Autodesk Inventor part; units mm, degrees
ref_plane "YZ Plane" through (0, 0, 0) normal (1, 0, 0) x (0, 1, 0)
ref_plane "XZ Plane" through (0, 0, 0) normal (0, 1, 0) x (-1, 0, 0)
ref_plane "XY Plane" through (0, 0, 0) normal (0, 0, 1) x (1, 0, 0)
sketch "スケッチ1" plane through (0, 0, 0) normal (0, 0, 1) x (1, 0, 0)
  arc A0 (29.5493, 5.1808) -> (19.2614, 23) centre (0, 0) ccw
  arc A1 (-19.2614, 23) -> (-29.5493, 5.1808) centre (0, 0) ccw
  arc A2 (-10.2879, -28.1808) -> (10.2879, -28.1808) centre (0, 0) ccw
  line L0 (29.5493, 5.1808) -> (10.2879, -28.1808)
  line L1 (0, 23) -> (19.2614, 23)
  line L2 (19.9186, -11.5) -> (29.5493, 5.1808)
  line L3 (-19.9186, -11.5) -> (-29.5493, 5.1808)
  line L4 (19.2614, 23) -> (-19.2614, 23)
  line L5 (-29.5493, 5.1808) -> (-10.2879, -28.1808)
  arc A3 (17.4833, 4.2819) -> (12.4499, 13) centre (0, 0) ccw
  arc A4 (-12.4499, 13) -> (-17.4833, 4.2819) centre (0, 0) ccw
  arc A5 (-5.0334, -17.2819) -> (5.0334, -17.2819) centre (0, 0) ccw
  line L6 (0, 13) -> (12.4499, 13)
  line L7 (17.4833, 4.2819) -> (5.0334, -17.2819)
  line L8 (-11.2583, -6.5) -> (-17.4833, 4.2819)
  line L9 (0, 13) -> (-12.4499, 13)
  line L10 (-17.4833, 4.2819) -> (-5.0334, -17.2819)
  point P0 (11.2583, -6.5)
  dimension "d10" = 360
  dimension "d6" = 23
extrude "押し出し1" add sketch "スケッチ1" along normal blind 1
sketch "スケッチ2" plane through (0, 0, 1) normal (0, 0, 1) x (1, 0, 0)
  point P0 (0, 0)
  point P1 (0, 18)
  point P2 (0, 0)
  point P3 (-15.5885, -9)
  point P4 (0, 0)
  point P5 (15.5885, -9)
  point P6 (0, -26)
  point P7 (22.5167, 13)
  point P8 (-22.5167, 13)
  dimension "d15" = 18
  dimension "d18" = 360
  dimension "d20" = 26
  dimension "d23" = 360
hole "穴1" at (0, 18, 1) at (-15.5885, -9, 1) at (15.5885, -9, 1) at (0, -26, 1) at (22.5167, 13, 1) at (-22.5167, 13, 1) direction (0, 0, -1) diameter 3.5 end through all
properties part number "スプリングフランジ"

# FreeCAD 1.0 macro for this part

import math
import FreeCAD as App
import Part
import Sketcher

V = App.Vector
Q = App.Units.Quantity

doc = App.newDocument("Part")
body = doc.addObject("PartDesign::Body", "Body")

# Sketch on XY plane
sketch1 = doc.addObject("Sketcher::SketchObject", "Sketch")
body.addObject(sketch1)
sketch1.AttachmentSupport = (doc.XY_Plane, [""])
sketch1.MapMode = "FlatFace"
sketch1.addGeometry([
    Part.LineSegment(V(10.2879, -28.1808, 0), V(29.5493, 5.1808, 0)),  # 0
    Part.ArcOfCircle(Part.Circle(V(0, 0, 0), V(0, 0, 1), 29.999973), math.radians(9.944442), math.radians(50.055437)),  # 1
    Part.LineSegment(V(19.2614, 23, 0), V(-19.2614, 23, 0)),  # 2
    Part.ArcOfCircle(Part.Circle(V(0, 0, 0), V(0, 0, 1), 30.00003), math.radians(129.944563), math.radians(170.055558)),  # 3
    Part.LineSegment(V(-29.5493, 5.1808, 0), V(-10.2879, -28.1808, 0)),  # 4
    Part.ArcOfCircle(Part.Circle(V(0, 0, 0), V(0, 0, 1), 29.999973), math.radians(-110.055505), math.radians(-69.944495)),  # 5
    Part.ArcOfCircle(Part.Circle(V(0, 0, 0), V(0, 0, 1), 17.999977), math.radians(13.761637), math.radians(46.238256)),  # 6
    Part.LineSegment(V(17.4833, 4.2819, 0), V(5.0334, -17.2819, 0)),  # 7
    Part.ArcOfCircle(Part.Circle(V(0, 0, 0), V(0, 0, 1), 17.999977), math.radians(-106.238343), math.radians(-73.761657)),  # 8
    Part.LineSegment(V(-5.0334, -17.2819, 0), V(-11.258337, -6.500022, 0)),  # 9
    Part.LineSegment(V(-11.2583, -6.5, 0), V(-17.4833, 4.2819, 0)),  # 10
    Part.ArcOfCircle(Part.Circle(V(0, 0, 0), V(0, 0, 1), 18.000012), math.radians(133.761744), math.radians(166.238363)),  # 11
    Part.LineSegment(V(-12.4499, 13, 0), V(12.4499, 13, 0)),  # 12
], False)
sketch1.addConstraint([
    Sketcher.Constraint("Coincident", 0, 2, 1, 1),
    Sketcher.Constraint("Coincident", 1, 2, 2, 1),
    Sketcher.Constraint("Coincident", 2, 2, 3, 1),
    Sketcher.Constraint("Coincident", 3, 2, 4, 1),
    Sketcher.Constraint("Coincident", 4, 2, 5, 1),
    Sketcher.Constraint("Coincident", 5, 2, 0, 1),
    Sketcher.Constraint("Coincident", 6, 1, 7, 1),
    Sketcher.Constraint("Coincident", 7, 2, 8, 2),
    Sketcher.Constraint("Coincident", 8, 1, 9, 1),
    Sketcher.Constraint("Coincident", 9, 2, 10, 1),
    Sketcher.Constraint("Coincident", 10, 2, 11, 2),
    Sketcher.Constraint("Coincident", 11, 1, 12, 1),
    Sketcher.Constraint("Coincident", 12, 2, 6, 2),
    Sketcher.Constraint("Horizontal", 2),
    Sketcher.Constraint("Horizontal", 12),
    Sketcher.Constraint("Coincident", 1, 3, -1, 1),
    Sketcher.Constraint("Coincident", 3, 3, -1, 1),
    Sketcher.Constraint("Coincident", 5, 3, -1, 1),
    Sketcher.Constraint("Coincident", 6, 3, -1, 1),
    Sketcher.Constraint("Coincident", 8, 3, -1, 1),
    Sketcher.Constraint("Coincident", 11, 3, -1, 1),
    Sketcher.Constraint("Equal", 1, 3),
    Sketcher.Constraint("Equal", 3, 5),
    Sketcher.Constraint("Equal", 6, 8),
    Sketcher.Constraint("Equal", 8, 11),
    Sketcher.Constraint("Parallel", 0, 7),
    Sketcher.Constraint("Parallel", 4, 9),
    Sketcher.Constraint("Parallel", 9, 10),
    Sketcher.Constraint("Horizontal", 0, 2, 3, 2),
    Sketcher.Constraint("Horizontal", 4, 2, 5, 2),
    Sketcher.Constraint("Horizontal", 7, 2, 8, 1),
    Sketcher.Constraint("Equal", 9, 10),
    Sketcher.Constraint("DistanceY", -1, 1, 1, 2, Q("23 mm")),
    Sketcher.Constraint("Radius", 1, Q("30 mm")),
    Sketcher.Constraint("Radius", 6, Q("18 mm")),
    Sketcher.Constraint("Angle", 0, Q("60 deg")),
    Sketcher.Constraint("DistanceY", -1, 1, 11, 1, Q("13 mm")),
    Sketcher.Constraint("DistanceY", 9, 2, -1, 1, Q("6.5 mm")),
    Sketcher.Constraint("DistanceX", 4, 2, -1, 1, Q("10.288 mm")),
])
pad1 = doc.addObject("PartDesign::Pad", "Pad")
body.addObject(pad1)
pad1.Profile = sketch1
pad1.Length = 1

# Sketch on XY plane
sketch2 = doc.addObject("Sketcher::SketchObject", "Sketch001")
body.addObject(sketch2)
sketch2.AttachmentSupport = (doc.XY_Plane, [""])
sketch2.MapMode = "FlatFace"
sketch2.AttachmentOffset = App.Placement(V(0, 0, 1), App.Rotation())
sketch2.addGeometry([
    Part.Circle(V(0, 18, 0), V(0, 0, 1), 1.75),  # 0
    Part.Circle(V(-15.5885, -9, 0), V(0, 0, 1), 1.75),  # 1
    Part.Circle(V(15.5885, -9, 0), V(0, 0, 1), 1.75),  # 2
    Part.Circle(V(0, -26, 0), V(0, 0, 1), 1.75),  # 3
    Part.Circle(V(22.5167, 13, 0), V(0, 0, 1), 1.75),  # 4
    Part.Circle(V(-22.5167, 13, 0), V(0, 0, 1), 1.75),  # 5
], False)
sketch2.addConstraint([
    Sketcher.Constraint("Equal", 0, 1),
    Sketcher.Constraint("Equal", 1, 2),
    Sketcher.Constraint("Equal", 2, 3),
    Sketcher.Constraint("Equal", 3, 4),
    Sketcher.Constraint("Equal", 4, 5),
    Sketcher.Constraint("Symmetric", 1, 3, 2, 3, -2),
    Sketcher.Constraint("Symmetric", 4, 3, 5, 3, -2),
    Sketcher.Constraint("PointOnObject", 0, 3, -2),
    Sketcher.Constraint("PointOnObject", 3, 3, -2),
    Sketcher.Constraint("Diameter", 0, Q("3.5 mm")),
    Sketcher.Constraint("DistanceY", -1, 1, 0, 3, Q("18 mm")),
    Sketcher.Constraint("DistanceY", 1, 3, -1, 1, Q("9 mm")),
    Sketcher.Constraint("DistanceY", 3, 3, -1, 1, Q("26 mm")),
    Sketcher.Constraint("DistanceY", -1, 1, 4, 3, Q("13 mm")),
    Sketcher.Constraint("DistanceX", 1, 3, 2, 3, Q("31.177 mm")),
    Sketcher.Constraint("DistanceX", -1, 1, 4, 3, Q("22.5167 mm")),
])
doc.recompute()
hole = doc.addObject("PartDesign::Hole", "Hole")
body.addObject(hole)
hole.Profile = sketch2
hole.ThreadType = "None"
hole.Diameter = 3.5
hole.DepthType = "ThroughAll"

doc.recompute()
